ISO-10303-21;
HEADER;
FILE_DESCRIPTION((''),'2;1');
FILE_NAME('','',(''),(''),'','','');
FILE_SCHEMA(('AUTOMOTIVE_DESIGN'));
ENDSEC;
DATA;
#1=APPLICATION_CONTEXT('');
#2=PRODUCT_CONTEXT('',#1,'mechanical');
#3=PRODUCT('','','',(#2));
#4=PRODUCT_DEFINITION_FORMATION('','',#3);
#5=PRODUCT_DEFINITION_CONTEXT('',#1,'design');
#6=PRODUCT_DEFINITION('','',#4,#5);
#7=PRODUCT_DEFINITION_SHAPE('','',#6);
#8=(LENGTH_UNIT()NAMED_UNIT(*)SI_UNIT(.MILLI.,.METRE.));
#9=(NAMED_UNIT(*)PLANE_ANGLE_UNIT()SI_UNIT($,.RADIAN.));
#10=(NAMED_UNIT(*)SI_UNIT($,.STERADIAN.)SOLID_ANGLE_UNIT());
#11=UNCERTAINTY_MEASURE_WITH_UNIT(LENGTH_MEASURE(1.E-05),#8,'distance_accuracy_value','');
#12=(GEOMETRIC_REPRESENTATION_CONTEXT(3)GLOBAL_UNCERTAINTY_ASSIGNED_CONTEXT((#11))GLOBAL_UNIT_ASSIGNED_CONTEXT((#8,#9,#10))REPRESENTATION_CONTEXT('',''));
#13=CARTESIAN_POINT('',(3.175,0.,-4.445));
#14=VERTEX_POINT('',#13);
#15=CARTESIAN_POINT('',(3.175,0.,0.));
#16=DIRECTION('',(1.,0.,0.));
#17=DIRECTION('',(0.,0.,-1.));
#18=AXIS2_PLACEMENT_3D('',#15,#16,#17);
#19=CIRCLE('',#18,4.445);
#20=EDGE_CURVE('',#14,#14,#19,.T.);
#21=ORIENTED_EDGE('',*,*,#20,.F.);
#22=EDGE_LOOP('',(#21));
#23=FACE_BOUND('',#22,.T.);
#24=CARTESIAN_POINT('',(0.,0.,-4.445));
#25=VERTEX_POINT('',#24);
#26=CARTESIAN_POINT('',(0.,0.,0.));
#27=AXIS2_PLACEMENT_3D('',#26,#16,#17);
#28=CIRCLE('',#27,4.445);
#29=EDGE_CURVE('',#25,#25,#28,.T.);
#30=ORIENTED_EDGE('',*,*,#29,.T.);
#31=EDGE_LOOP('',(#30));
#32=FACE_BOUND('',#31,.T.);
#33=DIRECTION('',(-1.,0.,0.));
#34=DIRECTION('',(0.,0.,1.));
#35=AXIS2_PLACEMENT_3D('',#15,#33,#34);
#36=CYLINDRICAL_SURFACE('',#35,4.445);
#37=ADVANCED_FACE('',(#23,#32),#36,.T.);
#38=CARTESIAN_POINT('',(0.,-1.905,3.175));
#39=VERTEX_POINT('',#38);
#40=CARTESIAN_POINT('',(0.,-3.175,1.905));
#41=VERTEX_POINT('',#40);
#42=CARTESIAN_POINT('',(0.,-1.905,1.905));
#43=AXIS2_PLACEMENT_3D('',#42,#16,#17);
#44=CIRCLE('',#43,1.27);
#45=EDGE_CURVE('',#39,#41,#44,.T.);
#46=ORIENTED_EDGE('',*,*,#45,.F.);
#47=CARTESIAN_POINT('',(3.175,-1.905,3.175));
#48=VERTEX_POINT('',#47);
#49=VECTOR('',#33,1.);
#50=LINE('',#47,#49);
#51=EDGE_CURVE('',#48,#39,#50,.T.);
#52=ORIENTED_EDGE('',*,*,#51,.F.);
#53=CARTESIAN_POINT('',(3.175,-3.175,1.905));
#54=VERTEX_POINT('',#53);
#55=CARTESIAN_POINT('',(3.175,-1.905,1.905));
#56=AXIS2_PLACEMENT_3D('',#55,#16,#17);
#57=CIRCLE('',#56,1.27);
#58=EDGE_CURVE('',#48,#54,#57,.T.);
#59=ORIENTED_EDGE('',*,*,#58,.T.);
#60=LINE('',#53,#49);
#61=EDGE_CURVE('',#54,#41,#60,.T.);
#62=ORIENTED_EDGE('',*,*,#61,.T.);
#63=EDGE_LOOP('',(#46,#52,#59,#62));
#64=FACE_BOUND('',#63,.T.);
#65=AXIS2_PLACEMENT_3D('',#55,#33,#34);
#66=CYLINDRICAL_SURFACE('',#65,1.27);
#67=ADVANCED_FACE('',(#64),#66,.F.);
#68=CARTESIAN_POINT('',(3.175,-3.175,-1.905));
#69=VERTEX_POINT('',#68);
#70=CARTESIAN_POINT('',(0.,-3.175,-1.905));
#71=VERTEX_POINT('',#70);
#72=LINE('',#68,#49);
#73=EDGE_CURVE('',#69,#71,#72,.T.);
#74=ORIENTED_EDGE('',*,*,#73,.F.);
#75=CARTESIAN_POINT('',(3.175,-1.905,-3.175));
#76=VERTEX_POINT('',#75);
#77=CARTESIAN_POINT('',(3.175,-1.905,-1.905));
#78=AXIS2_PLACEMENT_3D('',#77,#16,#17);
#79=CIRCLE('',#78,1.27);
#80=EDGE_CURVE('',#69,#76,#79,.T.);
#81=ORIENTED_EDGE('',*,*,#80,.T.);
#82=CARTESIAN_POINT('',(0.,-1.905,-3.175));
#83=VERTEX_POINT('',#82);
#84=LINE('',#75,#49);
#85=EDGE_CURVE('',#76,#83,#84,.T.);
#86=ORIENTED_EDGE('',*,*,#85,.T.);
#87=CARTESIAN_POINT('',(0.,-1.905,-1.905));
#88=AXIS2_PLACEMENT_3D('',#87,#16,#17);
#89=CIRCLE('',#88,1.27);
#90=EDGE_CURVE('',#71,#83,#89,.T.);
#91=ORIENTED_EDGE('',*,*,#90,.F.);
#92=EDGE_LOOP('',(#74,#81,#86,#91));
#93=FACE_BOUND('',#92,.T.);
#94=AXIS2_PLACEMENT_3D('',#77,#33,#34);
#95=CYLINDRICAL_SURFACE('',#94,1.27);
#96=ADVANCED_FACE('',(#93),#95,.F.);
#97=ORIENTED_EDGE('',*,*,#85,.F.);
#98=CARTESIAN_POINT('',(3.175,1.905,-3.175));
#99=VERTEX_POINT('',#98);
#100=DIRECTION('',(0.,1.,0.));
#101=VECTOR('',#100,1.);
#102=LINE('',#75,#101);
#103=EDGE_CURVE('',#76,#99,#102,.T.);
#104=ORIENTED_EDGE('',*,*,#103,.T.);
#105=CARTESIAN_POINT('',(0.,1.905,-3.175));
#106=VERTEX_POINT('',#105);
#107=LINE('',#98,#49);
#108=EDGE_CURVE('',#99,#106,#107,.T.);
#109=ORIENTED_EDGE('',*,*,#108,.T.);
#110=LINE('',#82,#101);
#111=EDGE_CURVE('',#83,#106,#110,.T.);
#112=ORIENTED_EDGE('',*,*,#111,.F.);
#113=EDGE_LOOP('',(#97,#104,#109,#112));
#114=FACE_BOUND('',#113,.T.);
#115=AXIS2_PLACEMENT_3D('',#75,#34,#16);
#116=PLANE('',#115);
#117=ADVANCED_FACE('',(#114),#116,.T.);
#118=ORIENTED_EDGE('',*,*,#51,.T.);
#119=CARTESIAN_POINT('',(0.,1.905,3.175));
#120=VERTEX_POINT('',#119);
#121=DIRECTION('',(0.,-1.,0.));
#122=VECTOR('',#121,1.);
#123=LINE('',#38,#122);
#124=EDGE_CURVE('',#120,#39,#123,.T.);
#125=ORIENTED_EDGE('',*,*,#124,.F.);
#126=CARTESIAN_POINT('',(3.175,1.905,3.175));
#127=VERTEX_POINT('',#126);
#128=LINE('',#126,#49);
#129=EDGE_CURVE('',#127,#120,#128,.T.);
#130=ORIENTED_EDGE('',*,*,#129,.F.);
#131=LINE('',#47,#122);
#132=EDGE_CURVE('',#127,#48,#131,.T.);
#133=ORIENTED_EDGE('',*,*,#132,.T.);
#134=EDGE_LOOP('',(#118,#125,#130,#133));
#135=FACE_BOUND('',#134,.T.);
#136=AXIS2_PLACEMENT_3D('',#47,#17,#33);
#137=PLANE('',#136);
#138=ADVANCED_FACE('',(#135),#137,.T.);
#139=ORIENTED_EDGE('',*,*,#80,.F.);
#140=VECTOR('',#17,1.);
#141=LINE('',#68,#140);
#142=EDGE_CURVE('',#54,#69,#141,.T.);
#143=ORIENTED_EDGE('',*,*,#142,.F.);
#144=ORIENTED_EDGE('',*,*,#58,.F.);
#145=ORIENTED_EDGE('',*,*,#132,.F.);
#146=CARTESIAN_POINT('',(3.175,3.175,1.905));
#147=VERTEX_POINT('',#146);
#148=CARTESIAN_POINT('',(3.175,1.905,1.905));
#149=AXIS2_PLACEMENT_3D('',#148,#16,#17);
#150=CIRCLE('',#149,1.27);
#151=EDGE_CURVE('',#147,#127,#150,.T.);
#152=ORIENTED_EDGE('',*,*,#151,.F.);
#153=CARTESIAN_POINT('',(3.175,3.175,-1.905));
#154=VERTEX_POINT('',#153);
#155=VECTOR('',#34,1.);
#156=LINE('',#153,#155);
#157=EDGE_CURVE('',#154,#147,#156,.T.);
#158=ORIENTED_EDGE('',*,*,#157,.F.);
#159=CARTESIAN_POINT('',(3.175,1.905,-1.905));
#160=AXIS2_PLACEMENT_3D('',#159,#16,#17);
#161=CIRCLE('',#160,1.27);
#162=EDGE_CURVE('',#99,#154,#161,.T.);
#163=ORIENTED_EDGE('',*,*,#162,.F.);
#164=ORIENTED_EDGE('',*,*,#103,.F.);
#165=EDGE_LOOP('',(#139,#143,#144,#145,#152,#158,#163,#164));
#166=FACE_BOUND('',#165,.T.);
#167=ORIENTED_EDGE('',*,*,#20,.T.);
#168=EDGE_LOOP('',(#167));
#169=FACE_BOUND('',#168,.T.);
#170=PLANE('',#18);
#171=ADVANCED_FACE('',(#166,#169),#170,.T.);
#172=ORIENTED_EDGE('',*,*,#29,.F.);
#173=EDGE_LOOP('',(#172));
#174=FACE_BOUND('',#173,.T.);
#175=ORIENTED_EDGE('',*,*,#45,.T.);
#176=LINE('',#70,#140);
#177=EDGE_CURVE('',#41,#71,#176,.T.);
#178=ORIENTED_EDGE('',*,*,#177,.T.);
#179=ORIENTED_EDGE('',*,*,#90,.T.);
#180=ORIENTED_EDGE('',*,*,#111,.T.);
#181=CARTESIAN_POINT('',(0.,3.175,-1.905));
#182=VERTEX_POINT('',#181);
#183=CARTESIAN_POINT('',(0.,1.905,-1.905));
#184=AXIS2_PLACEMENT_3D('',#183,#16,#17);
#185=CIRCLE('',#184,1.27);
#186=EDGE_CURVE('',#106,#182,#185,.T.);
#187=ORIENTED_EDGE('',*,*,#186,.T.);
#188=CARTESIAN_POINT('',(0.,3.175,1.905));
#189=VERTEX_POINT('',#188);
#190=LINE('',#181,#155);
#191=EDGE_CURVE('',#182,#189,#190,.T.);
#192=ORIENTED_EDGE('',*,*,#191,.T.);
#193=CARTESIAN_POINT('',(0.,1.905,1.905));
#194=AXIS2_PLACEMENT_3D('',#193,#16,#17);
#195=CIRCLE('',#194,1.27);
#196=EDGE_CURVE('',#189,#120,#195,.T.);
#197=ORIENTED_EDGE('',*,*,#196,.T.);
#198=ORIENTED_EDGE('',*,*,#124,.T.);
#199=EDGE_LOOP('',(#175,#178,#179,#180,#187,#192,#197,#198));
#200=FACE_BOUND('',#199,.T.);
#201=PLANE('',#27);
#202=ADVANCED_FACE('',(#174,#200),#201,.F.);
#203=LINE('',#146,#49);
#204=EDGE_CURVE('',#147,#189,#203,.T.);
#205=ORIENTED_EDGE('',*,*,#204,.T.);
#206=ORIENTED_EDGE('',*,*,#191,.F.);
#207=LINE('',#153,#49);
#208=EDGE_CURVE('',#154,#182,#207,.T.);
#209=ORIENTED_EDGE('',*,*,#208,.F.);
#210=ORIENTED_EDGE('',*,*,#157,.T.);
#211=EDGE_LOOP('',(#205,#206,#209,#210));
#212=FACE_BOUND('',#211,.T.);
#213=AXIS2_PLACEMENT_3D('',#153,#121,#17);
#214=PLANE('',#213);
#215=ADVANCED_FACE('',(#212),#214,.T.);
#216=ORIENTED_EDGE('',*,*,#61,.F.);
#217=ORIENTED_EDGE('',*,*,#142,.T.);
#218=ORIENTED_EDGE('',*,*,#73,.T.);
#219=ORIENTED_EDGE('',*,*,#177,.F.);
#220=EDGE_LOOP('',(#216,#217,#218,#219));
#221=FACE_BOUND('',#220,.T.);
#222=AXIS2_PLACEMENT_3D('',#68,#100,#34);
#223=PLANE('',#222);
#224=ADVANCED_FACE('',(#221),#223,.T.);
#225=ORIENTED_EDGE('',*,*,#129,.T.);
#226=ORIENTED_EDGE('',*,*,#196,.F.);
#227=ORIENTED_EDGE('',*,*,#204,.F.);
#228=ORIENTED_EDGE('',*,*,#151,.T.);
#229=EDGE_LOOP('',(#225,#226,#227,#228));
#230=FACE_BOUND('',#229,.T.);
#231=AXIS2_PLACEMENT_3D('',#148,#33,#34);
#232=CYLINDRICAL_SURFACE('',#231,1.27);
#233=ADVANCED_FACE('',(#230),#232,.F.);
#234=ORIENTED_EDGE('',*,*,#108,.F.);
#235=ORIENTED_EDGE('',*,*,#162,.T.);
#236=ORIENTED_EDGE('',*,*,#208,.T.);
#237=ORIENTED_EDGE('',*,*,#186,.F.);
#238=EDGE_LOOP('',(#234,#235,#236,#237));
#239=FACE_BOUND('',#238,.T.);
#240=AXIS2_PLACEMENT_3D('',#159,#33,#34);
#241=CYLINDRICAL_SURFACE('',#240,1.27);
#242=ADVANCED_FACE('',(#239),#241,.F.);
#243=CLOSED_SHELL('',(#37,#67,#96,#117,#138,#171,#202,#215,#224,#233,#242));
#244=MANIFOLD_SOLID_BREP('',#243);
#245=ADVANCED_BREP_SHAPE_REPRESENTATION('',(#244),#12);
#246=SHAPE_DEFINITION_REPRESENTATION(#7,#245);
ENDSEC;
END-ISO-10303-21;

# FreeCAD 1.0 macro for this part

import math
import FreeCAD as App
import Part
import Sketcher
Q = App.Units.Quantity

doc = App.newDocument("Part")
params = doc.addObject("Spreadsheet::Sheet", "Params")
for row, (alias, value) in enumerate([
    ("sketch1_diameter", "0.35 in"),
    ("sketch1_radius", "0.05 in"),
    ("sketch1_width", "0.15 in"),
    ("pad1_length", "0.125 in"),
], start=1):
    params.set(f"A{row}", alias)
    params.set(f"B{row}", "=" + value)
    params.setAlias(f"B{row}", alias)

body = doc.addObject("PartDesign::Body", "Body")

sketch1 = doc.addObject("Sketcher::SketchObject", "Sketch")
body.addObject(sketch1)
sketch1.AttachmentSupport = (doc.YZ_Plane, [""])
sketch1.MapMode = "FlatFace"
sketch1.addGeometry(Part.Circle(App.Vector(0, 0, 0), App.Vector(0, 0, 1), 4.4), False)
sketch1.addGeometry(Part.LineSegment(App.Vector(3.2, 1.9, 0), App.Vector(3.2, -1.9, 0)), False)
sketch1.addGeometry(Part.ArcOfCircle(Part.Circle(App.Vector(1.9, -1.9, 0), App.Vector(0, 0, 1), 1.3), math.radians(-90), math.radians(0)), False)
sketch1.addGeometry(Part.LineSegment(App.Vector(1.9, -3.2, 0), App.Vector(-1.9, -3.2, 0)), False)
sketch1.addGeometry(Part.ArcOfCircle(Part.Circle(App.Vector(-1.9, -1.9, 0), App.Vector(0, 0, 1), 1.3), math.radians(180), math.radians(270)), False)
sketch1.addGeometry(Part.LineSegment(App.Vector(-3.2, -1.9, 0), App.Vector(-3.2, 1.9, 0)), False)
sketch1.addGeometry(Part.ArcOfCircle(Part.Circle(App.Vector(-1.9, 1.9, 0), App.Vector(0, 0, 1), 1.3), math.radians(90), math.radians(180)), False)
sketch1.addGeometry(Part.LineSegment(App.Vector(-1.9, 3.2, 0), App.Vector(1.9, 3.2, 0)), False)
sketch1.addGeometry(Part.ArcOfCircle(Part.Circle(App.Vector(1.9, 1.9, 0), App.Vector(0, 0, 1), 1.3), math.radians(0), math.radians(90)), False)
sketch1.addConstraint(Sketcher.Constraint("Tangent", 1, 2, 2, 2))
sketch1.addConstraint(Sketcher.Constraint("Tangent", 2, 1, 3, 1))
sketch1.addConstraint(Sketcher.Constraint("Tangent", 3, 2, 4, 2))
sketch1.addConstraint(Sketcher.Constraint("Tangent", 4, 1, 5, 1))
sketch1.addConstraint(Sketcher.Constraint("Tangent", 5, 2, 6, 2))
sketch1.addConstraint(Sketcher.Constraint("Tangent", 6, 1, 7, 1))
sketch1.addConstraint(Sketcher.Constraint("Tangent", 7, 2, 8, 2))
sketch1.addConstraint(Sketcher.Constraint("Tangent", 8, 1, 1, 1))
sketch1.addConstraint(Sketcher.Constraint("Vertical", 1))
sketch1.addConstraint(Sketcher.Constraint("Horizontal", 3))
sketch1.addConstraint(Sketcher.Constraint("Vertical", 5))
sketch1.addConstraint(Sketcher.Constraint("Horizontal", 7))
sketch1.addConstraint(Sketcher.Constraint("Coincident", 0, 3, -1, 1))
sketch1.addConstraint(Sketcher.Constraint("Equal", 2, 4))
sketch1.addConstraint(Sketcher.Constraint("Equal", 4, 6))
sketch1.addConstraint(Sketcher.Constraint("Equal", 6, 8))
sketch1.addConstraint(Sketcher.Constraint("Symmetric", 2, 3, 6, 3, -1, 1))
sketch1.addConstraint(Sketcher.Constraint("Equal", 7, 1))
sketch1.addConstraint(Sketcher.Constraint("Diameter", 0, Q("0.35 in")))
sketch1.addConstraint(Sketcher.Constraint("Radius", 2, Q("0.05 in")))
sketch1.addConstraint(Sketcher.Constraint("DistanceX", 3, 2, 3, 1, Q("0.15 in")))
sketch1.setExpression("Constraints[18]", "Params.sketch1_diameter")
sketch1.setExpression("Constraints[19]", "Params.sketch1_radius")
sketch1.setExpression("Constraints[20]", "Params.sketch1_width")
pad1 = doc.addObject("PartDesign::Pad", "Pad")
body.addObject(pad1)
pad1.Profile = sketch1
pad1.setExpression("Length", "Params.pad1_length")

doc.recompute()
